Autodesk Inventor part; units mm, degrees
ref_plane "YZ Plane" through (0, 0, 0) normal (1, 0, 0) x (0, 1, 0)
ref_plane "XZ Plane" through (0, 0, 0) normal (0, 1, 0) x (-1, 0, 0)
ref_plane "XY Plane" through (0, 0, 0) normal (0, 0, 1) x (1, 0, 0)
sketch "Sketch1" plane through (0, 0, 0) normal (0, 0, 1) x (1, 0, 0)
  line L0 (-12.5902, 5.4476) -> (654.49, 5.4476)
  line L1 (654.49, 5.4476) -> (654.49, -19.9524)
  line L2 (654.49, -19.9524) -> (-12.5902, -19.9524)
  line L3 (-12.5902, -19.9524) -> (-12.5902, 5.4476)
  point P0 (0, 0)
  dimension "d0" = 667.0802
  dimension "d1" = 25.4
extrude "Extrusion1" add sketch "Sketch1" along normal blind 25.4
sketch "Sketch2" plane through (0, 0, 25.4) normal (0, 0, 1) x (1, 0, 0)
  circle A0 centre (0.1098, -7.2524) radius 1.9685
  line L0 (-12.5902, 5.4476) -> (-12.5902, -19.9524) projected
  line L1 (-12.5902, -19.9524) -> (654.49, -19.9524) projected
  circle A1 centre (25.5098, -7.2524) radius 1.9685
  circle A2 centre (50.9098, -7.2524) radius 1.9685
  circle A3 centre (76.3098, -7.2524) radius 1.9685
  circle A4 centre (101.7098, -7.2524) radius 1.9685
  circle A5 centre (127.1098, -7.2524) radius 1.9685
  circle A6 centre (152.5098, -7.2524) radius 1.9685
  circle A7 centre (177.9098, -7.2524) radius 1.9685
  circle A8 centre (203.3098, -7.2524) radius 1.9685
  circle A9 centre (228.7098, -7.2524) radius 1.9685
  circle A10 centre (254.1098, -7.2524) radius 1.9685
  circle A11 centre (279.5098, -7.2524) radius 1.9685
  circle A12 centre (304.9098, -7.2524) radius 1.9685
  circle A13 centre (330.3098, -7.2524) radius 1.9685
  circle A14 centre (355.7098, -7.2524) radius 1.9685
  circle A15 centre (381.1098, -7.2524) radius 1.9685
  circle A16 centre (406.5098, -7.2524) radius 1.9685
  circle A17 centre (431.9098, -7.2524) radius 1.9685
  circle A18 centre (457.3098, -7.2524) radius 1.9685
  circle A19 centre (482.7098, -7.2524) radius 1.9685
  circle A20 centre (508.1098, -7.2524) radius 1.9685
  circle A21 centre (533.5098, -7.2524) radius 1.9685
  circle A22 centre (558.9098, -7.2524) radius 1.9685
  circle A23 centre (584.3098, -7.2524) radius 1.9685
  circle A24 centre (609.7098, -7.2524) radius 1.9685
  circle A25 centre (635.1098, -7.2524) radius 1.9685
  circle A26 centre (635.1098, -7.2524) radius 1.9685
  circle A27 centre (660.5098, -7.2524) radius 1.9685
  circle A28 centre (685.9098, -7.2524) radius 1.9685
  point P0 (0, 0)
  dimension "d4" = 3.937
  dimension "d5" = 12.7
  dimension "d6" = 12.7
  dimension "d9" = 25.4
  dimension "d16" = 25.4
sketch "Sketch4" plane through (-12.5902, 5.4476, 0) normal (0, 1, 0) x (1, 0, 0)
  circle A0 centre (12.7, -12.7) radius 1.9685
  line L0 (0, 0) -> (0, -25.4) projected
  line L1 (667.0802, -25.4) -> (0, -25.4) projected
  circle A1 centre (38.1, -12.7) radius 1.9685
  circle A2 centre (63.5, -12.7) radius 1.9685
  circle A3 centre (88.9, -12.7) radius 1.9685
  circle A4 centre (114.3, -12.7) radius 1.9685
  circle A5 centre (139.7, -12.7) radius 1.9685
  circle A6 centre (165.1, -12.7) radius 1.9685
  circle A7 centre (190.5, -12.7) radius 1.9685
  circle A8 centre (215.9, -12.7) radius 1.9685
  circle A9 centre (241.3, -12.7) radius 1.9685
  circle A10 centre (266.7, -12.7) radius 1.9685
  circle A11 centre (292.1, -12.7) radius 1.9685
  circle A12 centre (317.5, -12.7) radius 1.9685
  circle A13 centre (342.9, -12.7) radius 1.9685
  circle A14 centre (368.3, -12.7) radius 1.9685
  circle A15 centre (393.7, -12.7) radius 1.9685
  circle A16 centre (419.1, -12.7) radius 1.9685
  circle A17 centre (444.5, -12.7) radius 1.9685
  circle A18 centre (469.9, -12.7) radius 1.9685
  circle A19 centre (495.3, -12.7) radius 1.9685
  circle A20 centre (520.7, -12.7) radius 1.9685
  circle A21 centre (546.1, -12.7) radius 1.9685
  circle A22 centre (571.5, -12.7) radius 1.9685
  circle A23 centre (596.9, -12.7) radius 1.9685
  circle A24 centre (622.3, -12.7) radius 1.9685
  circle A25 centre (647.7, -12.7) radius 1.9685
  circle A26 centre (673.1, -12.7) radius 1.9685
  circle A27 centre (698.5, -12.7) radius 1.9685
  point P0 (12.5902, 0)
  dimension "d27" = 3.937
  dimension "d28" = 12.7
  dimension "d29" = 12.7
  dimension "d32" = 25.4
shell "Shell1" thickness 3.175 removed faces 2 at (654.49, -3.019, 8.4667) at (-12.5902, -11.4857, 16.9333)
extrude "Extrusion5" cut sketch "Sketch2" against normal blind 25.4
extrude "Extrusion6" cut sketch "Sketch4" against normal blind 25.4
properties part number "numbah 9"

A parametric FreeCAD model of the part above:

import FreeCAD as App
import Part
import Sketcher

V = App.Vector
Q = App.Units.Quantity


def faces_at(feature, points):
    """Names of the faces that lie closest to the given points."""
    faces = feature.Shape.Faces
    near = lambda p: min(range(len(faces)), key=lambda i: faces[i].distToShape(Part.Vertex(*p))[0])
    return sorted({f"Face{near(p) + 1}" for p in points})


def add_polygon(sketch, points):
    """Adds a closed chain of lines whose ends are joined by coincident constraints."""
    first, n = sketch.GeometryCount, len(points)
    for a, b in zip(points, points[1:] + points[:1]):
        sketch.addGeometry(Part.LineSegment(App.Vector(*a, 0), App.Vector(*b, 0)), False)
    for i in range(n):
        sketch.addConstraint(Sketcher.Constraint("Coincident", first + i, 2, first + (i + 1) % n, 1))

doc = App.newDocument("Part")
params = doc.addObject("Spreadsheet::Sheet", "Params")
for row, (alias, value) in enumerate([
    ("sketch1_height", "1 in"),
    ("sketch1_width", "26.263 in"),
    ("pad1_length", "1 in"),
    ("thickness_wall", "0.125 in"),
    ("sketch2_diameter", "0.155 in"),
    ("pocket1_length", "1 in"),
    ("sketch3_diameter", "0.155 in"),
    ("pocket2_length", "1 in"),
], start=1):
    params.set(f"A{row}", alias)
    params.set(f"B{row}", "=" + value)
    params.setAlias(f"B{row}", alias)

body = doc.addObject("PartDesign::Body", "Body")

sketch1 = body.newObject("Sketcher::SketchObject", "Sketch")
sketch1.AttachmentSupport = (doc.getObject("XY_Plane"), [""])
sketch1.MapMode = "FlatFace"
add_polygon(sketch1, [(654, 5), (-13, 5), (-13, -20), (654, -20)])
sketch1.addConstraint([
    Sketcher.Constraint("Horizontal", 0),
    Sketcher.Constraint("Vertical", 1),
    Sketcher.Constraint("Horizontal", 2),
    Sketcher.Constraint("Vertical", 3),
    Sketcher.Constraint("DistanceY", 1, 2, 1, 1, Q("1 in")),
    Sketcher.Constraint("DistanceX", 0, 2, 0, 1, Q("26.263 in")),
    Sketcher.Constraint("DistanceX", 0, 2, -1, 1, Q("12.5902 mm")),
    Sketcher.Constraint("DistanceY", -1, 1, 0, 2, Q("5.4476 mm")),
])
sketch1.setExpression("Constraints[8]", "Params.sketch1_height")
sketch1.setExpression("Constraints[9]", "Params.sketch1_width")
pad1 = body.newObject("PartDesign::Pad", "Pad")
pad1.Profile = sketch1
pad1.setExpression("Length", "Params.pad1_length")
doc.recompute()

thickness = body.newObject("PartDesign::Thickness", "Thickness")
thickness.Base = (pad1, faces_at(pad1, [(654.49, -3.019, 8.467), (-12.59, -11.486, 16.933)]))
thickness.setExpression("Value", "Params.thickness_wall")
thickness.Reversed = True
thickness.Join = "Intersection"

sketch2 = body.newObject("Sketcher::SketchObject", "Sketch001")
sketch2.AttachmentSupport = (doc.getObject("XY_Plane"), [""])
sketch2.MapMode = "FlatFace"
sketch2.AttachmentOffset = App.Placement(V(0, 0, 1 * 25.4), App.Rotation())
sketch2.addGeometry([
    Part.Circle(V(0.1, -7.3, 0), V(0, 0, 1), 2),
    Part.Circle(V(25.5, -7.3, 0), V(0, 0, 1), 2),
    Part.Circle(V(50.9, -7.3, 0), V(0, 0, 1), 2),
    Part.Circle(V(76.3, -7.3, 0), V(0, 0, 1), 2),
    Part.Circle(V(101.7, -7.3, 0), V(0, 0, 1), 2),
    Part.Circle(V(127.1, -7.3, 0), V(0, 0, 1), 2),
    Part.Circle(V(152.5, -7.3, 0), V(0, 0, 1), 2),
    Part.Circle(V(177.9, -7.3, 0), V(0, 0, 1), 2),
    Part.Circle(V(203.3, -7.3, 0), V(0, 0, 1), 2),
    Part.Circle(V(228.7, -7.3, 0), V(0, 0, 1), 2),
    Part.Circle(V(254.1, -7.3, 0), V(0, 0, 1), 2),
    Part.Circle(V(279.5, -7.3, 0), V(0, 0, 1), 2),
    Part.Circle(V(304.9, -7.3, 0), V(0, 0, 1), 2),
    Part.Circle(V(330.3, -7.3, 0), V(0, 0, 1), 2),
    Part.Circle(V(355.7, -7.3, 0), V(0, 0, 1), 2),
    Part.Circle(V(381.1, -7.3, 0), V(0, 0, 1), 2),
    Part.Circle(V(406.5, -7.3, 0), V(0, 0, 1), 2),
    Part.Circle(V(431.9, -7.3, 0), V(0, 0, 1), 2),
    Part.Circle(V(457.3, -7.3, 0), V(0, 0, 1), 2),
    Part.Circle(V(482.7, -7.3, 0), V(0, 0, 1), 2),
    Part.Circle(V(508.1, -7.3, 0), V(0, 0, 1), 2),
    Part.Circle(V(533.5, -7.3, 0), V(0, 0, 1), 2),
    Part.Circle(V(558.9, -7.3, 0), V(0, 0, 1), 2),
    Part.Circle(V(584.3, -7.3, 0), V(0, 0, 1), 2),
    Part.Circle(V(609.7, -7.3, 0), V(0, 0, 1), 2),
    Part.Circle(V(635.1, -7.3, 0), V(0, 0, 1), 2),
    Part.Circle(V(660.5, -7.3, 0), V(0, 0, 1), 2),
    Part.Circle(V(685.9, -7.3, 0), V(0, 0, 1), 2),
], False)
sketch2.addConstraint([
    Sketcher.Constraint("Equal", 0, 1),
    Sketcher.Constraint("Equal", 1, 2),
    Sketcher.Constraint("Equal", 2, 3),
    Sketcher.Constraint("Equal", 3, 4),
    Sketcher.Constraint("Equal", 4, 5),
    Sketcher.Constraint("Equal", 5, 6),
    Sketcher.Constraint("Equal", 6, 7),
    Sketcher.Constraint("Equal", 7, 8),
    Sketcher.Constraint("Equal", 8, 9),
    Sketcher.Constraint("Equal", 9, 10),
    Sketcher.Constraint("Equal", 10, 11),
    Sketcher.Constraint("Equal", 11, 12),
    Sketcher.Constraint("Equal", 12, 13),
    Sketcher.Constraint("Equal", 13, 14),
    Sketcher.Constraint("Equal", 14, 15),
    Sketcher.Constraint("Equal", 15, 16),
    Sketcher.Constraint("Equal", 16, 17),
    Sketcher.Constraint("Equal", 17, 18),
    Sketcher.Constraint("Equal", 18, 19),
    Sketcher.Constraint("Equal", 19, 20),
    Sketcher.Constraint("Equal", 20, 21),
    Sketcher.Constraint("Equal", 21, 22),
    Sketcher.Constraint("Equal", 22, 23),
    Sketcher.Constraint("Equal", 23, 24),
    Sketcher.Constraint("Equal", 24, 25),
    Sketcher.Constraint("Equal", 25, 26),
    Sketcher.Constraint("Equal", 26, 27),
    Sketcher.Constraint("Horizontal", 0, 3, 1, 3),
    Sketcher.Constraint("Horizontal", 1, 3, 2, 3),
    Sketcher.Constraint("Horizontal", 2, 3, 3, 3),
    Sketcher.Constraint("Horizontal", 3, 3, 4, 3),
    Sketcher.Constraint("Horizontal", 4, 3, 5, 3),
    Sketcher.Constraint("Horizontal", 5, 3, 6, 3),
    Sketcher.Constraint("Horizontal", 6, 3, 7, 3),
    Sketcher.Constraint("Horizontal", 7, 3, 8, 3),
    Sketcher.Constraint("Horizontal", 8, 3, 9, 3),
    Sketcher.Constraint("Horizontal", 9, 3, 10, 3),
    Sketcher.Constraint("Horizontal", 10, 3, 11, 3),
    Sketcher.Constraint("Horizontal", 11, 3, 12, 3),
    Sketcher.Constraint("Horizontal", 12, 3, 13, 3),
    Sketcher.Constraint("Horizontal", 13, 3, 14, 3),
    Sketcher.Constraint("Horizontal", 14, 3, 15, 3),
    Sketcher.Constraint("Horizontal", 15, 3, 16, 3),
    Sketcher.Constraint("Horizontal", 16, 3, 17, 3),
    Sketcher.Constraint("Horizontal", 17, 3, 18, 3),
    Sketcher.Constraint("Horizontal", 18, 3, 19, 3),
    Sketcher.Constraint("Horizontal", 19, 3, 20, 3),
    Sketcher.Constraint("Horizontal", 20, 3, 21, 3),
    Sketcher.Constraint("Horizontal", 21, 3, 22, 3),
    Sketcher.Constraint("Horizontal", 22, 3, 23, 3),
    Sketcher.Constraint("Horizontal", 23, 3, 24, 3),
    Sketcher.Constraint("Horizontal", 24, 3, 25, 3),
    Sketcher.Constraint("Horizontal", 25, 3, 26, 3),
    Sketcher.Constraint("Horizontal", 26, 3, 27, 3),
    Sketcher.Constraint("Diameter", 0, Q("0.155 in")),
    Sketcher.Constraint("DistanceX", 0, 3, 1, 3, Q("1 in")),
    Sketcher.Constraint("DistanceX", 1, 3, 2, 3, Q("1 in")),
    Sketcher.Constraint("DistanceX", 2, 3, 3, 3, Q("1 in")),
    Sketcher.Constraint("DistanceX", 3, 3, 4, 3, Q("1 in")),
    Sketcher.Constraint("DistanceX", 4, 3, 5, 3, Q("1 in")),
    Sketcher.Constraint("DistanceX", 5, 3, 6, 3, Q("1 in")),
    Sketcher.Constraint("DistanceX", 6, 3, 7, 3, Q("1 in")),
    Sketcher.Constraint("DistanceX", 7, 3, 8, 3, Q("1 in")),
    Sketcher.Constraint("DistanceX", 8, 3, 9, 3, Q("1 in")),
    Sketcher.Constraint("DistanceX", 9, 3, 10, 3, Q("1 in")),
    Sketcher.Constraint("DistanceX", 10, 3, 11, 3, Q("1 in")),
    Sketcher.Constraint("DistanceX", 11, 3, 12, 3, Q("1 in")),
    Sketcher.Constraint("DistanceX", 12, 3, 13, 3, Q("1 in")),
    Sketcher.Constraint("DistanceX", 13, 3, 14, 3, Q("1 in")),
    Sketcher.Constraint("DistanceX", 14, 3, 15, 3, Q("1 in")),
    Sketcher.Constraint("DistanceX", 15, 3, 16, 3, Q("1 in")),
    Sketcher.Constraint("DistanceX", 16, 3, 17, 3, Q("1 in")),
    Sketcher.Constraint("DistanceX", 17, 3, 18, 3, Q("1 in")),
    Sketcher.Constraint("DistanceX", 18, 3, 19, 3, Q("1 in")),
    Sketcher.Constraint("DistanceX", 19, 3, 20, 3, Q("1 in")),
    Sketcher.Constraint("DistanceX", 20, 3, 21, 3, Q("1 in")),
    Sketcher.Constraint("DistanceX", 21, 3, 22, 3, Q("1 in")),
    Sketcher.Constraint("DistanceX", 22, 3, 23, 3, Q("1 in")),
    Sketcher.Constraint("DistanceX", 23, 3, 24, 3, Q("1 in")),
    Sketcher.Constraint("DistanceX", 24, 3, 25, 3, Q("1 in")),
    Sketcher.Constraint("DistanceX", 25, 3, 26, 3, Q("1 in")),
    Sketcher.Constraint("DistanceX", 26, 3, 27, 3, Q("1 in")),
    Sketcher.Constraint("DistanceX", -1, 1, 0, 3, Q("0.1098 mm")),
    Sketcher.Constraint("DistanceY", 0, 3, -1, 1, Q("7.2524 mm")),
])
sketch2.setExpression("Constraints[54]", "Params.sketch2_diameter")
pocket1 = body.newObject("PartDesign::Pocket", "Pocket")
pocket1.Profile = sketch2
pocket1.setExpression("Length", "Params.pocket1_length")

sketch3 = body.newObject("Sketcher::SketchObject", "Sketch002")
sketch3.AttachmentSupport = (doc.getObject("XZ_Plane"), [""])
sketch3.MapMode = "FlatFace"
sketch3.AttachmentOffset = App.Placement(V(0, 0, -5.4476), App.Rotation())
sketch3.addGeometry([
    Part.Circle(V(0.1, 12.7, 0), V(0, 0, 1), 2),
    Part.Circle(V(25.5, 12.7, 0), V(0, 0, 1), 2),
    Part.Circle(V(50.9, 12.7, 0), V(0, 0, 1), 2),
    Part.Circle(V(76.3, 12.7, 0), V(0, 0, 1), 2),
    Part.Circle(V(101.7, 12.7, 0), V(0, 0, 1), 2),
    Part.Circle(V(127.1, 12.7, 0), V(0, 0, 1), 2),
    Part.Circle(V(152.5, 12.7, 0), V(0, 0, 1), 2),
    Part.Circle(V(177.9, 12.7, 0), V(0, 0, 1), 2),
    Part.Circle(V(203.3, 12.7, 0), V(0, 0, 1), 2),
    Part.Circle(V(228.7, 12.7, 0), V(0, 0, 1), 2),
    Part.Circle(V(254.1, 12.7, 0), V(0, 0, 1), 2),
    Part.Circle(V(279.5, 12.7, 0), V(0, 0, 1), 2),
    Part.Circle(V(304.9, 12.7, 0), V(0, 0, 1), 2),
    Part.Circle(V(330.3, 12.7, 0), V(0, 0, 1), 2),
    Part.Circle(V(355.7, 12.7, 0), V(0, 0, 1), 2),
    Part.Circle(V(381.1, 12.7, 0), V(0, 0, 1), 2),
    Part.Circle(V(406.5, 12.7, 0), V(0, 0, 1), 2),
    Part.Circle(V(431.9, 12.7, 0), V(0, 0, 1), 2),
    Part.Circle(V(457.3, 12.7, 0), V(0, 0, 1), 2),
    Part.Circle(V(482.7, 12.7, 0), V(0, 0, 1), 2),
    Part.Circle(V(508.1, 12.7, 0), V(0, 0, 1), 2),
    Part.Circle(V(533.5, 12.7, 0), V(0, 0, 1), 2),
    Part.Circle(V(558.9, 12.7, 0), V(0, 0, 1), 2),
    Part.Circle(V(584.3, 12.7, 0), V(0, 0, 1), 2),
    Part.Circle(V(609.7, 12.7, 0), V(0, 0, 1), 2),
    Part.Circle(V(635.1, 12.7, 0), V(0, 0, 1), 2),
    Part.Circle(V(660.5, 12.7, 0), V(0, 0, 1), 2),
    Part.Circle(V(685.9, 12.7, 0), V(0, 0, 1), 2),
], False)
sketch3.addConstraint([
    Sketcher.Constraint("Equal", 0, 1),
    Sketcher.Constraint("Equal", 1, 2),
    Sketcher.Constraint("Equal", 2, 3),
    Sketcher.Constraint("Equal", 3, 4),
    Sketcher.Constraint("Equal", 4, 5),
    Sketcher.Constraint("Equal", 5, 6),
    Sketcher.Constraint("Equal", 6, 7),
    Sketcher.Constraint("Equal", 7, 8),
    Sketcher.Constraint("Equal", 8, 9),
    Sketcher.Constraint("Equal", 9, 10),
    Sketcher.Constraint("Equal", 10, 11),
    Sketcher.Constraint("Equal", 11, 12),
    Sketcher.Constraint("Equal", 12, 13),
    Sketcher.Constraint("Equal", 13, 14),
    Sketcher.Constraint("Equal", 14, 15),
    Sketcher.Constraint("Equal", 15, 16),
    Sketcher.Constraint("Equal", 16, 17),
    Sketcher.Constraint("Equal", 17, 18),
    Sketcher.Constraint("Equal", 18, 19),
    Sketcher.Constraint("Equal", 19, 20),
    Sketcher.Constraint("Equal", 20, 21),
    Sketcher.Constraint("Equal", 21, 22),
    Sketcher.Constraint("Equal", 22, 23),
    Sketcher.Constraint("Equal", 23, 24),
    Sketcher.Constraint("Equal", 24, 25),
    Sketcher.Constraint("Equal", 25, 26),
    Sketcher.Constraint("Equal", 26, 27),
    Sketcher.Constraint("Horizontal", 0, 3, 1, 3),
    Sketcher.Constraint("Horizontal", 1, 3, 2, 3),
    Sketcher.Constraint("Horizontal", 2, 3, 3, 3),
    Sketcher.Constraint("Horizontal", 3, 3, 4, 3),
    Sketcher.Constraint("Horizontal", 4, 3, 5, 3),
    Sketcher.Constraint("Horizontal", 5, 3, 6, 3),
    Sketcher.Constraint("Horizontal", 6, 3, 7, 3),
    Sketcher.Constraint("Horizontal", 7, 3, 8, 3),
    Sketcher.Constraint("Horizontal", 8, 3, 9, 3),
    Sketcher.Constraint("Horizontal", 9, 3, 10, 3),
    Sketcher.Constraint("Horizontal", 10, 3, 11, 3),
    Sketcher.Constraint("Horizontal", 11, 3, 12, 3),
    Sketcher.Constraint("Horizontal", 12, 3, 13, 3),
    Sketcher.Constraint("Horizontal", 13, 3, 14, 3),
    Sketcher.Constraint("Horizontal", 14, 3, 15, 3),
    Sketcher.Constraint("Horizontal", 15, 3, 16, 3),
    Sketcher.Constraint("Horizontal", 16, 3, 17, 3),
    Sketcher.Constraint("Horizontal", 17, 3, 18, 3),
    Sketcher.Constraint("Horizontal", 18, 3, 19, 3),
    Sketcher.Constraint("Horizontal", 19, 3, 20, 3),
    Sketcher.Constraint("Horizontal", 20, 3, 21, 3),
    Sketcher.Constraint("Horizontal", 21, 3, 22, 3),
    Sketcher.Constraint("Horizontal", 22, 3, 23, 3),
    Sketcher.Constraint("Horizontal", 23, 3, 24, 3),
    Sketcher.Constraint("Horizontal", 24, 3, 25, 3),
    Sketcher.Constraint("Horizontal", 25, 3, 26, 3),
    Sketcher.Constraint("Horizontal", 26, 3, 27, 3),
    Sketcher.Constraint("Diameter", 0, Q("0.155 in")),
    Sketcher.Constraint("DistanceX", 0, 3, 1, 3, Q("1 in")),
    Sketcher.Constraint("DistanceX", 1, 3, 2, 3, Q("1 in")),
    Sketcher.Constraint("DistanceX", 2, 3, 3, 3, Q("1 in")),
    Sketcher.Constraint("DistanceX", 3, 3, 4, 3, Q("1 in")),
    Sketcher.Constraint("DistanceX", 4, 3, 5, 3, Q("1 in")),
    Sketcher.Constraint("DistanceX", 5, 3, 6, 3, Q("1 in")),
    Sketcher.Constraint("DistanceX", 6, 3, 7, 3, Q("1 in")),
    Sketcher.Constraint("DistanceX", 7, 3, 8, 3, Q("1 in")),
    Sketcher.Constraint("DistanceX", 8, 3, 9, 3, Q("1 in")),
    Sketcher.Constraint("DistanceX", 9, 3, 10, 3, Q("1 in")),
    Sketcher.Constraint("DistanceX", 10, 3, 11, 3, Q("1 in")),
    Sketcher.Constraint("DistanceX", 11, 3, 12, 3, Q("1 in")),
    Sketcher.Constraint("DistanceX", 12, 3, 13, 3, Q("1 in")),
    Sketcher.Constraint("DistanceX", 13, 3, 14, 3, Q("1 in")),
    Sketcher.Constraint("DistanceX", 14, 3, 15, 3, Q("1 in")),
    Sketcher.Constraint("DistanceX", 15, 3, 16, 3, Q("1 in")),
    Sketcher.Constraint("DistanceX", 16, 3, 17, 3, Q("1 in")),
    Sketcher.Constraint("DistanceX", 17, 3, 18, 3, Q("1 in")),
    Sketcher.Constraint("DistanceX", 18, 3, 19, 3, Q("1 in")),
    Sketcher.Constraint("DistanceX", 19, 3, 20, 3, Q("1 in")),
    Sketcher.Constraint("DistanceX", 20, 3, 21, 3, Q("1 in")),
    Sketcher.Constraint("DistanceX", 21, 3, 22, 3, Q("1 in")),
    Sketcher.Constraint("DistanceX", 22, 3, 23, 3, Q("1 in")),
    Sketcher.Constraint("DistanceX", 23, 3, 24, 3, Q("1 in")),
    Sketcher.Constraint("DistanceX", 24, 3, 25, 3, Q("1 in")),
    Sketcher.Constraint("DistanceX", 25, 3, 26, 3, Q("1 in")),
    Sketcher.Constraint("DistanceX", 26, 3, 27, 3, Q("1 in")),
    Sketcher.Constraint("DistanceY", -1, 1, 0, 3, Q("0.5 in")),
    Sketcher.Constraint("DistanceX", -1, 1, 0, 3, Q("0.1098 mm")),
])
sketch3.setExpression("Constraints[54]", "Params.sketch3_diameter")
pocket2 = body.newObject("PartDesign::Pocket", "Pocket001")
pocket2.Profile = sketch3
pocket2.setExpression("Length", "Params.pocket2_length")
pocket2.Reversed = True

doc.recompute()
